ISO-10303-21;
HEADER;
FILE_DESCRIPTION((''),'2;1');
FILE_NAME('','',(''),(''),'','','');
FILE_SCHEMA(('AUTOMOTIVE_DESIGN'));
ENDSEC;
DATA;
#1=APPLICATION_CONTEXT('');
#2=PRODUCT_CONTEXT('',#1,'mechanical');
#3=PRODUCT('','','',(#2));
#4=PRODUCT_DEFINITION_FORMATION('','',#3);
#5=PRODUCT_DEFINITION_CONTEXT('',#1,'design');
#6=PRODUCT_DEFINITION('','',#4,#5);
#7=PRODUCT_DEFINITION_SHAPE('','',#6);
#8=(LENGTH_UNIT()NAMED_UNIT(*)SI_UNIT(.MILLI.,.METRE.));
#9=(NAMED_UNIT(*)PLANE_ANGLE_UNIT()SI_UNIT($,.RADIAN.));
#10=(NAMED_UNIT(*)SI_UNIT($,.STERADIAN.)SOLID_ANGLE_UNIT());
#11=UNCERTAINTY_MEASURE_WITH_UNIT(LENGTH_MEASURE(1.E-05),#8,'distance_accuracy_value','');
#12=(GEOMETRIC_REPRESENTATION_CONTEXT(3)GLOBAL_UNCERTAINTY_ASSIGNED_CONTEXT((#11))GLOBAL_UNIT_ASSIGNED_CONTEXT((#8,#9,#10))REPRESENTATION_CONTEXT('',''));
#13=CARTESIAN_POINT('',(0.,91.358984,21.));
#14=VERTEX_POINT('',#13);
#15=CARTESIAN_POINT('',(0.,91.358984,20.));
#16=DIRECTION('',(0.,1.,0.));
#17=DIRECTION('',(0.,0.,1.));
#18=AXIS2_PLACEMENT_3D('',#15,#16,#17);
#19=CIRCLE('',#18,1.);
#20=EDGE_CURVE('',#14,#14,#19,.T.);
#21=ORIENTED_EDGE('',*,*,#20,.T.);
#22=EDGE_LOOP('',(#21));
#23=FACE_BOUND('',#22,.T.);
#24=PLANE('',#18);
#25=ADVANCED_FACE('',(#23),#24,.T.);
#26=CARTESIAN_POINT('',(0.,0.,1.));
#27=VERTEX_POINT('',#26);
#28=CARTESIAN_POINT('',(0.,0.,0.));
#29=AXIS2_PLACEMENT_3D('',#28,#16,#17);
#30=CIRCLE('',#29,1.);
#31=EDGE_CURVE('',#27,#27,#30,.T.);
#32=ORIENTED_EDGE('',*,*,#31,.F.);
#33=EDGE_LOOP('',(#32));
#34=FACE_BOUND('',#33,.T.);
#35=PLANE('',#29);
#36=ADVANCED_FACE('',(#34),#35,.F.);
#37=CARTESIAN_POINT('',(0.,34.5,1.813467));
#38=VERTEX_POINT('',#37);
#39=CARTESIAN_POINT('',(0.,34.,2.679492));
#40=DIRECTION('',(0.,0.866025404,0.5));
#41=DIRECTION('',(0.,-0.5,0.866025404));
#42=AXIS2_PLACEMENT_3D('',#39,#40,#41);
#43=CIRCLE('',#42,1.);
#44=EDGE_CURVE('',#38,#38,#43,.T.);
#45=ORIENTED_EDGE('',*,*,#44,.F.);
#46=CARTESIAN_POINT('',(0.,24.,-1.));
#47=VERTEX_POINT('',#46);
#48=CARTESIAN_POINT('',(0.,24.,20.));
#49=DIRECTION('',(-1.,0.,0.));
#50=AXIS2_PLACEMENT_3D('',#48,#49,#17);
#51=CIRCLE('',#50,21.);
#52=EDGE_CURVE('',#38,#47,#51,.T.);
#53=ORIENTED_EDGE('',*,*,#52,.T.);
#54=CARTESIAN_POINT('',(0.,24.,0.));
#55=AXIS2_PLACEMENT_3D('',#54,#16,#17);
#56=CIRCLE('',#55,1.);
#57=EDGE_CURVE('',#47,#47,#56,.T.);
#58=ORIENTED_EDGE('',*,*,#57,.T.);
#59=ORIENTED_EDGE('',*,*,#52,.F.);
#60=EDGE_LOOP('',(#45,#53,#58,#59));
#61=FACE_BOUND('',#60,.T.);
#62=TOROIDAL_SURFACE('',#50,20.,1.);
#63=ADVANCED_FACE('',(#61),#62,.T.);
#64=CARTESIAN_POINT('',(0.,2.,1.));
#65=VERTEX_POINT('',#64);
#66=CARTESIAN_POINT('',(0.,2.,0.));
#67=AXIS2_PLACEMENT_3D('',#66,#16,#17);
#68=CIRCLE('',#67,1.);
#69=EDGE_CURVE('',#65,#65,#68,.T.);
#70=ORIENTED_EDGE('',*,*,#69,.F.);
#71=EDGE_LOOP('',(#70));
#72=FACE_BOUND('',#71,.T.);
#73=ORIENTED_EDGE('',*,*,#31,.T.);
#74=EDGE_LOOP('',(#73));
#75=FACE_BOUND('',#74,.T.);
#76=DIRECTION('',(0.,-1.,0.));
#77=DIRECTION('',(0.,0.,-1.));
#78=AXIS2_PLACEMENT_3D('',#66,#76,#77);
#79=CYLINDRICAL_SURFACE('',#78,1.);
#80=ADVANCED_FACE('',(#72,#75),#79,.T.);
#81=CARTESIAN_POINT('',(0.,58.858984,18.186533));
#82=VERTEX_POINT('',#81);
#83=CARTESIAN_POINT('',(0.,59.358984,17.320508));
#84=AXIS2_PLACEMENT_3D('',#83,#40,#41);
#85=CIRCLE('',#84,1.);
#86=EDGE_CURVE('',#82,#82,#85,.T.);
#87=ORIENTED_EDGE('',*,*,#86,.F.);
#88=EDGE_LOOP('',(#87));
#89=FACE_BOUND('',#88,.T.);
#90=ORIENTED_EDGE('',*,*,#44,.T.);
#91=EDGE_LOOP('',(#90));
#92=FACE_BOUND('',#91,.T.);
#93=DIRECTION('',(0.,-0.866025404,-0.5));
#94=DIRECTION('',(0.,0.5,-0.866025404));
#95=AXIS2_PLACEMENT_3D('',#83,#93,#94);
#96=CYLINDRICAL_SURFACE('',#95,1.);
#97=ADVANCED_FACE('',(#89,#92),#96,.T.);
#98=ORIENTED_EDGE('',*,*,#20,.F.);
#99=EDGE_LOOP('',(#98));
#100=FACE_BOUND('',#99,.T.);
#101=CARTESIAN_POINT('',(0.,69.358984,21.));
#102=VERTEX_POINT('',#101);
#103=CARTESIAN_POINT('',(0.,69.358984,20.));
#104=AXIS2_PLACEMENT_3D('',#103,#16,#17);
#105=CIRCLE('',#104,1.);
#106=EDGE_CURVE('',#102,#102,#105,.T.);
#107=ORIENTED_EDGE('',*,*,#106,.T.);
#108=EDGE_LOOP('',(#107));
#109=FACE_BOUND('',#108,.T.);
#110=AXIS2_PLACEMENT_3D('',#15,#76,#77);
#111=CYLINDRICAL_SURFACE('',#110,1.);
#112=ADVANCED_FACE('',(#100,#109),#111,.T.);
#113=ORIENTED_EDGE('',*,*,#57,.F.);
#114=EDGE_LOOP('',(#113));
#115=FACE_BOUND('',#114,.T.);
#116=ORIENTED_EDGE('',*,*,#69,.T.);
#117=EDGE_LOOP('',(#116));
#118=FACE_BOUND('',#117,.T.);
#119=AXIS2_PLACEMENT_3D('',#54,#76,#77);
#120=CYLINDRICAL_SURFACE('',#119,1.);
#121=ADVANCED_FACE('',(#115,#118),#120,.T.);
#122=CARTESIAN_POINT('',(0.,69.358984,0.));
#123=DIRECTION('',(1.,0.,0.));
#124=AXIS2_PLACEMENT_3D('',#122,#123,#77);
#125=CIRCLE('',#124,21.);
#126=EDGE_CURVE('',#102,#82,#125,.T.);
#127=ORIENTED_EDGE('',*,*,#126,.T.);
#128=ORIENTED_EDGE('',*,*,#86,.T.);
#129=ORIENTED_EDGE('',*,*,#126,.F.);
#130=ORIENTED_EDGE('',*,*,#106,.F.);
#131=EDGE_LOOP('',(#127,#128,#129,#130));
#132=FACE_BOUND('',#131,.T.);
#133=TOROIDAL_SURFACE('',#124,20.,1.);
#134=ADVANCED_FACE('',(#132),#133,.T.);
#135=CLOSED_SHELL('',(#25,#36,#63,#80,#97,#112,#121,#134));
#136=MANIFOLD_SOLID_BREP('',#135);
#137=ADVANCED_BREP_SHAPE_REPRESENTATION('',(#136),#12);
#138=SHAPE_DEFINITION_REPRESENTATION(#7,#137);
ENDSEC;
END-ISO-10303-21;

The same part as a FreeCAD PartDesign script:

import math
import FreeCAD as App
import Part
import Sketcher
from FreeCAD import Vector
Q = App.Units.Quantity

doc = App.newDocument("Part")
body = doc.addObject("PartDesign::Body", "Body")

# Sketch on XZ plane
sketch1 = doc.addObject("Sketcher::SketchObject", "Sketch")
body.addObject(sketch1)
sketch1.AttachmentSupport = (doc.XZ_Plane, [""])
sketch1.MapMode = "FlatFace"
sketch1.AttachmentOffset = App.Placement(Vector(0, 0, -91.358984), App.Rotation())
sketch1.addGeometry(Part.Circle(Vector(0, 20, 0), Vector(0, 0, 1), 1), False)
sketch1.addConstraint([
    Sketcher.Constraint("PointOnObject", 0, 3, -2),
    Sketcher.Constraint("Diameter", 0, Q("2 mm")),
    Sketcher.Constraint("DistanceY", -1, 1, 0, 3, Q("20 mm")),
])

# Sketch on YZ plane
sketch2 = doc.addObject("Sketcher::SketchObject", "Sketch001")
body.addObject(sketch2)
sketch2.AttachmentSupport = (doc.YZ_Plane, [""])
sketch2.MapMode = "FlatFace"
sketch2.addGeometry([
    Part.LineSegment(Vector(91, 20, 0), Vector(69, 20, 0)),  # 0
    Part.ArcOfCircle(Part.Circle(Vector(69, 0, 0), Vector(0, 0, 1), 20), math.radians(90), math.radians(120)),  # 1
    Part.LineSegment(Vector(59, 17, 0), Vector(34, 3, 0)),  # 2
    Part.ArcOfCircle(Part.Circle(Vector(24, 20, 0), Vector(0, 0, 1), 20), math.radians(-90), math.radians(-60)),  # 3
    Part.LineSegment(Vector(24, 0, 0), Vector(0, 0, 0)),  # 4
], False)
sketch2.addConstraint([
    Sketcher.Constraint("Tangent", 0, 2, 1, 1),
    Sketcher.Constraint("Tangent", 1, 2, 2, 1),
    Sketcher.Constraint("Tangent", 2, 2, 3, 2),
    Sketcher.Constraint("Tangent", 3, 1, 4, 1),
    Sketcher.Constraint("Horizontal", 0),
    Sketcher.Constraint("Horizontal", 4),
    Sketcher.Constraint("Coincident", 4, 2, -1, 1),
    Sketcher.Constraint("Equal", 1, 3),
    Sketcher.Constraint("PointOnObject", 1, 3, -1),
    Sketcher.Constraint("Radius", 1, Q("20 mm")),
    Sketcher.Constraint("DistanceX", 0, 2, 0, 1, Q("22 mm")),
    Sketcher.Constraint("DistanceX", 4, 2, 4, 1, Q("24 mm")),
    Sketcher.Constraint("Angle", 2, Q("-150 deg")),
])
doc.recompute()

additivepipe = doc.addObject("PartDesign::AdditivePipe", "AdditivePipe")
body.addObject(additivepipe)
additivepipe.Profile = sketch1
additivepipe.Spine = (sketch2, ["Edge1", "Edge2", "Edge3", "Edge4", "Edge5"])

doc.recompute()
